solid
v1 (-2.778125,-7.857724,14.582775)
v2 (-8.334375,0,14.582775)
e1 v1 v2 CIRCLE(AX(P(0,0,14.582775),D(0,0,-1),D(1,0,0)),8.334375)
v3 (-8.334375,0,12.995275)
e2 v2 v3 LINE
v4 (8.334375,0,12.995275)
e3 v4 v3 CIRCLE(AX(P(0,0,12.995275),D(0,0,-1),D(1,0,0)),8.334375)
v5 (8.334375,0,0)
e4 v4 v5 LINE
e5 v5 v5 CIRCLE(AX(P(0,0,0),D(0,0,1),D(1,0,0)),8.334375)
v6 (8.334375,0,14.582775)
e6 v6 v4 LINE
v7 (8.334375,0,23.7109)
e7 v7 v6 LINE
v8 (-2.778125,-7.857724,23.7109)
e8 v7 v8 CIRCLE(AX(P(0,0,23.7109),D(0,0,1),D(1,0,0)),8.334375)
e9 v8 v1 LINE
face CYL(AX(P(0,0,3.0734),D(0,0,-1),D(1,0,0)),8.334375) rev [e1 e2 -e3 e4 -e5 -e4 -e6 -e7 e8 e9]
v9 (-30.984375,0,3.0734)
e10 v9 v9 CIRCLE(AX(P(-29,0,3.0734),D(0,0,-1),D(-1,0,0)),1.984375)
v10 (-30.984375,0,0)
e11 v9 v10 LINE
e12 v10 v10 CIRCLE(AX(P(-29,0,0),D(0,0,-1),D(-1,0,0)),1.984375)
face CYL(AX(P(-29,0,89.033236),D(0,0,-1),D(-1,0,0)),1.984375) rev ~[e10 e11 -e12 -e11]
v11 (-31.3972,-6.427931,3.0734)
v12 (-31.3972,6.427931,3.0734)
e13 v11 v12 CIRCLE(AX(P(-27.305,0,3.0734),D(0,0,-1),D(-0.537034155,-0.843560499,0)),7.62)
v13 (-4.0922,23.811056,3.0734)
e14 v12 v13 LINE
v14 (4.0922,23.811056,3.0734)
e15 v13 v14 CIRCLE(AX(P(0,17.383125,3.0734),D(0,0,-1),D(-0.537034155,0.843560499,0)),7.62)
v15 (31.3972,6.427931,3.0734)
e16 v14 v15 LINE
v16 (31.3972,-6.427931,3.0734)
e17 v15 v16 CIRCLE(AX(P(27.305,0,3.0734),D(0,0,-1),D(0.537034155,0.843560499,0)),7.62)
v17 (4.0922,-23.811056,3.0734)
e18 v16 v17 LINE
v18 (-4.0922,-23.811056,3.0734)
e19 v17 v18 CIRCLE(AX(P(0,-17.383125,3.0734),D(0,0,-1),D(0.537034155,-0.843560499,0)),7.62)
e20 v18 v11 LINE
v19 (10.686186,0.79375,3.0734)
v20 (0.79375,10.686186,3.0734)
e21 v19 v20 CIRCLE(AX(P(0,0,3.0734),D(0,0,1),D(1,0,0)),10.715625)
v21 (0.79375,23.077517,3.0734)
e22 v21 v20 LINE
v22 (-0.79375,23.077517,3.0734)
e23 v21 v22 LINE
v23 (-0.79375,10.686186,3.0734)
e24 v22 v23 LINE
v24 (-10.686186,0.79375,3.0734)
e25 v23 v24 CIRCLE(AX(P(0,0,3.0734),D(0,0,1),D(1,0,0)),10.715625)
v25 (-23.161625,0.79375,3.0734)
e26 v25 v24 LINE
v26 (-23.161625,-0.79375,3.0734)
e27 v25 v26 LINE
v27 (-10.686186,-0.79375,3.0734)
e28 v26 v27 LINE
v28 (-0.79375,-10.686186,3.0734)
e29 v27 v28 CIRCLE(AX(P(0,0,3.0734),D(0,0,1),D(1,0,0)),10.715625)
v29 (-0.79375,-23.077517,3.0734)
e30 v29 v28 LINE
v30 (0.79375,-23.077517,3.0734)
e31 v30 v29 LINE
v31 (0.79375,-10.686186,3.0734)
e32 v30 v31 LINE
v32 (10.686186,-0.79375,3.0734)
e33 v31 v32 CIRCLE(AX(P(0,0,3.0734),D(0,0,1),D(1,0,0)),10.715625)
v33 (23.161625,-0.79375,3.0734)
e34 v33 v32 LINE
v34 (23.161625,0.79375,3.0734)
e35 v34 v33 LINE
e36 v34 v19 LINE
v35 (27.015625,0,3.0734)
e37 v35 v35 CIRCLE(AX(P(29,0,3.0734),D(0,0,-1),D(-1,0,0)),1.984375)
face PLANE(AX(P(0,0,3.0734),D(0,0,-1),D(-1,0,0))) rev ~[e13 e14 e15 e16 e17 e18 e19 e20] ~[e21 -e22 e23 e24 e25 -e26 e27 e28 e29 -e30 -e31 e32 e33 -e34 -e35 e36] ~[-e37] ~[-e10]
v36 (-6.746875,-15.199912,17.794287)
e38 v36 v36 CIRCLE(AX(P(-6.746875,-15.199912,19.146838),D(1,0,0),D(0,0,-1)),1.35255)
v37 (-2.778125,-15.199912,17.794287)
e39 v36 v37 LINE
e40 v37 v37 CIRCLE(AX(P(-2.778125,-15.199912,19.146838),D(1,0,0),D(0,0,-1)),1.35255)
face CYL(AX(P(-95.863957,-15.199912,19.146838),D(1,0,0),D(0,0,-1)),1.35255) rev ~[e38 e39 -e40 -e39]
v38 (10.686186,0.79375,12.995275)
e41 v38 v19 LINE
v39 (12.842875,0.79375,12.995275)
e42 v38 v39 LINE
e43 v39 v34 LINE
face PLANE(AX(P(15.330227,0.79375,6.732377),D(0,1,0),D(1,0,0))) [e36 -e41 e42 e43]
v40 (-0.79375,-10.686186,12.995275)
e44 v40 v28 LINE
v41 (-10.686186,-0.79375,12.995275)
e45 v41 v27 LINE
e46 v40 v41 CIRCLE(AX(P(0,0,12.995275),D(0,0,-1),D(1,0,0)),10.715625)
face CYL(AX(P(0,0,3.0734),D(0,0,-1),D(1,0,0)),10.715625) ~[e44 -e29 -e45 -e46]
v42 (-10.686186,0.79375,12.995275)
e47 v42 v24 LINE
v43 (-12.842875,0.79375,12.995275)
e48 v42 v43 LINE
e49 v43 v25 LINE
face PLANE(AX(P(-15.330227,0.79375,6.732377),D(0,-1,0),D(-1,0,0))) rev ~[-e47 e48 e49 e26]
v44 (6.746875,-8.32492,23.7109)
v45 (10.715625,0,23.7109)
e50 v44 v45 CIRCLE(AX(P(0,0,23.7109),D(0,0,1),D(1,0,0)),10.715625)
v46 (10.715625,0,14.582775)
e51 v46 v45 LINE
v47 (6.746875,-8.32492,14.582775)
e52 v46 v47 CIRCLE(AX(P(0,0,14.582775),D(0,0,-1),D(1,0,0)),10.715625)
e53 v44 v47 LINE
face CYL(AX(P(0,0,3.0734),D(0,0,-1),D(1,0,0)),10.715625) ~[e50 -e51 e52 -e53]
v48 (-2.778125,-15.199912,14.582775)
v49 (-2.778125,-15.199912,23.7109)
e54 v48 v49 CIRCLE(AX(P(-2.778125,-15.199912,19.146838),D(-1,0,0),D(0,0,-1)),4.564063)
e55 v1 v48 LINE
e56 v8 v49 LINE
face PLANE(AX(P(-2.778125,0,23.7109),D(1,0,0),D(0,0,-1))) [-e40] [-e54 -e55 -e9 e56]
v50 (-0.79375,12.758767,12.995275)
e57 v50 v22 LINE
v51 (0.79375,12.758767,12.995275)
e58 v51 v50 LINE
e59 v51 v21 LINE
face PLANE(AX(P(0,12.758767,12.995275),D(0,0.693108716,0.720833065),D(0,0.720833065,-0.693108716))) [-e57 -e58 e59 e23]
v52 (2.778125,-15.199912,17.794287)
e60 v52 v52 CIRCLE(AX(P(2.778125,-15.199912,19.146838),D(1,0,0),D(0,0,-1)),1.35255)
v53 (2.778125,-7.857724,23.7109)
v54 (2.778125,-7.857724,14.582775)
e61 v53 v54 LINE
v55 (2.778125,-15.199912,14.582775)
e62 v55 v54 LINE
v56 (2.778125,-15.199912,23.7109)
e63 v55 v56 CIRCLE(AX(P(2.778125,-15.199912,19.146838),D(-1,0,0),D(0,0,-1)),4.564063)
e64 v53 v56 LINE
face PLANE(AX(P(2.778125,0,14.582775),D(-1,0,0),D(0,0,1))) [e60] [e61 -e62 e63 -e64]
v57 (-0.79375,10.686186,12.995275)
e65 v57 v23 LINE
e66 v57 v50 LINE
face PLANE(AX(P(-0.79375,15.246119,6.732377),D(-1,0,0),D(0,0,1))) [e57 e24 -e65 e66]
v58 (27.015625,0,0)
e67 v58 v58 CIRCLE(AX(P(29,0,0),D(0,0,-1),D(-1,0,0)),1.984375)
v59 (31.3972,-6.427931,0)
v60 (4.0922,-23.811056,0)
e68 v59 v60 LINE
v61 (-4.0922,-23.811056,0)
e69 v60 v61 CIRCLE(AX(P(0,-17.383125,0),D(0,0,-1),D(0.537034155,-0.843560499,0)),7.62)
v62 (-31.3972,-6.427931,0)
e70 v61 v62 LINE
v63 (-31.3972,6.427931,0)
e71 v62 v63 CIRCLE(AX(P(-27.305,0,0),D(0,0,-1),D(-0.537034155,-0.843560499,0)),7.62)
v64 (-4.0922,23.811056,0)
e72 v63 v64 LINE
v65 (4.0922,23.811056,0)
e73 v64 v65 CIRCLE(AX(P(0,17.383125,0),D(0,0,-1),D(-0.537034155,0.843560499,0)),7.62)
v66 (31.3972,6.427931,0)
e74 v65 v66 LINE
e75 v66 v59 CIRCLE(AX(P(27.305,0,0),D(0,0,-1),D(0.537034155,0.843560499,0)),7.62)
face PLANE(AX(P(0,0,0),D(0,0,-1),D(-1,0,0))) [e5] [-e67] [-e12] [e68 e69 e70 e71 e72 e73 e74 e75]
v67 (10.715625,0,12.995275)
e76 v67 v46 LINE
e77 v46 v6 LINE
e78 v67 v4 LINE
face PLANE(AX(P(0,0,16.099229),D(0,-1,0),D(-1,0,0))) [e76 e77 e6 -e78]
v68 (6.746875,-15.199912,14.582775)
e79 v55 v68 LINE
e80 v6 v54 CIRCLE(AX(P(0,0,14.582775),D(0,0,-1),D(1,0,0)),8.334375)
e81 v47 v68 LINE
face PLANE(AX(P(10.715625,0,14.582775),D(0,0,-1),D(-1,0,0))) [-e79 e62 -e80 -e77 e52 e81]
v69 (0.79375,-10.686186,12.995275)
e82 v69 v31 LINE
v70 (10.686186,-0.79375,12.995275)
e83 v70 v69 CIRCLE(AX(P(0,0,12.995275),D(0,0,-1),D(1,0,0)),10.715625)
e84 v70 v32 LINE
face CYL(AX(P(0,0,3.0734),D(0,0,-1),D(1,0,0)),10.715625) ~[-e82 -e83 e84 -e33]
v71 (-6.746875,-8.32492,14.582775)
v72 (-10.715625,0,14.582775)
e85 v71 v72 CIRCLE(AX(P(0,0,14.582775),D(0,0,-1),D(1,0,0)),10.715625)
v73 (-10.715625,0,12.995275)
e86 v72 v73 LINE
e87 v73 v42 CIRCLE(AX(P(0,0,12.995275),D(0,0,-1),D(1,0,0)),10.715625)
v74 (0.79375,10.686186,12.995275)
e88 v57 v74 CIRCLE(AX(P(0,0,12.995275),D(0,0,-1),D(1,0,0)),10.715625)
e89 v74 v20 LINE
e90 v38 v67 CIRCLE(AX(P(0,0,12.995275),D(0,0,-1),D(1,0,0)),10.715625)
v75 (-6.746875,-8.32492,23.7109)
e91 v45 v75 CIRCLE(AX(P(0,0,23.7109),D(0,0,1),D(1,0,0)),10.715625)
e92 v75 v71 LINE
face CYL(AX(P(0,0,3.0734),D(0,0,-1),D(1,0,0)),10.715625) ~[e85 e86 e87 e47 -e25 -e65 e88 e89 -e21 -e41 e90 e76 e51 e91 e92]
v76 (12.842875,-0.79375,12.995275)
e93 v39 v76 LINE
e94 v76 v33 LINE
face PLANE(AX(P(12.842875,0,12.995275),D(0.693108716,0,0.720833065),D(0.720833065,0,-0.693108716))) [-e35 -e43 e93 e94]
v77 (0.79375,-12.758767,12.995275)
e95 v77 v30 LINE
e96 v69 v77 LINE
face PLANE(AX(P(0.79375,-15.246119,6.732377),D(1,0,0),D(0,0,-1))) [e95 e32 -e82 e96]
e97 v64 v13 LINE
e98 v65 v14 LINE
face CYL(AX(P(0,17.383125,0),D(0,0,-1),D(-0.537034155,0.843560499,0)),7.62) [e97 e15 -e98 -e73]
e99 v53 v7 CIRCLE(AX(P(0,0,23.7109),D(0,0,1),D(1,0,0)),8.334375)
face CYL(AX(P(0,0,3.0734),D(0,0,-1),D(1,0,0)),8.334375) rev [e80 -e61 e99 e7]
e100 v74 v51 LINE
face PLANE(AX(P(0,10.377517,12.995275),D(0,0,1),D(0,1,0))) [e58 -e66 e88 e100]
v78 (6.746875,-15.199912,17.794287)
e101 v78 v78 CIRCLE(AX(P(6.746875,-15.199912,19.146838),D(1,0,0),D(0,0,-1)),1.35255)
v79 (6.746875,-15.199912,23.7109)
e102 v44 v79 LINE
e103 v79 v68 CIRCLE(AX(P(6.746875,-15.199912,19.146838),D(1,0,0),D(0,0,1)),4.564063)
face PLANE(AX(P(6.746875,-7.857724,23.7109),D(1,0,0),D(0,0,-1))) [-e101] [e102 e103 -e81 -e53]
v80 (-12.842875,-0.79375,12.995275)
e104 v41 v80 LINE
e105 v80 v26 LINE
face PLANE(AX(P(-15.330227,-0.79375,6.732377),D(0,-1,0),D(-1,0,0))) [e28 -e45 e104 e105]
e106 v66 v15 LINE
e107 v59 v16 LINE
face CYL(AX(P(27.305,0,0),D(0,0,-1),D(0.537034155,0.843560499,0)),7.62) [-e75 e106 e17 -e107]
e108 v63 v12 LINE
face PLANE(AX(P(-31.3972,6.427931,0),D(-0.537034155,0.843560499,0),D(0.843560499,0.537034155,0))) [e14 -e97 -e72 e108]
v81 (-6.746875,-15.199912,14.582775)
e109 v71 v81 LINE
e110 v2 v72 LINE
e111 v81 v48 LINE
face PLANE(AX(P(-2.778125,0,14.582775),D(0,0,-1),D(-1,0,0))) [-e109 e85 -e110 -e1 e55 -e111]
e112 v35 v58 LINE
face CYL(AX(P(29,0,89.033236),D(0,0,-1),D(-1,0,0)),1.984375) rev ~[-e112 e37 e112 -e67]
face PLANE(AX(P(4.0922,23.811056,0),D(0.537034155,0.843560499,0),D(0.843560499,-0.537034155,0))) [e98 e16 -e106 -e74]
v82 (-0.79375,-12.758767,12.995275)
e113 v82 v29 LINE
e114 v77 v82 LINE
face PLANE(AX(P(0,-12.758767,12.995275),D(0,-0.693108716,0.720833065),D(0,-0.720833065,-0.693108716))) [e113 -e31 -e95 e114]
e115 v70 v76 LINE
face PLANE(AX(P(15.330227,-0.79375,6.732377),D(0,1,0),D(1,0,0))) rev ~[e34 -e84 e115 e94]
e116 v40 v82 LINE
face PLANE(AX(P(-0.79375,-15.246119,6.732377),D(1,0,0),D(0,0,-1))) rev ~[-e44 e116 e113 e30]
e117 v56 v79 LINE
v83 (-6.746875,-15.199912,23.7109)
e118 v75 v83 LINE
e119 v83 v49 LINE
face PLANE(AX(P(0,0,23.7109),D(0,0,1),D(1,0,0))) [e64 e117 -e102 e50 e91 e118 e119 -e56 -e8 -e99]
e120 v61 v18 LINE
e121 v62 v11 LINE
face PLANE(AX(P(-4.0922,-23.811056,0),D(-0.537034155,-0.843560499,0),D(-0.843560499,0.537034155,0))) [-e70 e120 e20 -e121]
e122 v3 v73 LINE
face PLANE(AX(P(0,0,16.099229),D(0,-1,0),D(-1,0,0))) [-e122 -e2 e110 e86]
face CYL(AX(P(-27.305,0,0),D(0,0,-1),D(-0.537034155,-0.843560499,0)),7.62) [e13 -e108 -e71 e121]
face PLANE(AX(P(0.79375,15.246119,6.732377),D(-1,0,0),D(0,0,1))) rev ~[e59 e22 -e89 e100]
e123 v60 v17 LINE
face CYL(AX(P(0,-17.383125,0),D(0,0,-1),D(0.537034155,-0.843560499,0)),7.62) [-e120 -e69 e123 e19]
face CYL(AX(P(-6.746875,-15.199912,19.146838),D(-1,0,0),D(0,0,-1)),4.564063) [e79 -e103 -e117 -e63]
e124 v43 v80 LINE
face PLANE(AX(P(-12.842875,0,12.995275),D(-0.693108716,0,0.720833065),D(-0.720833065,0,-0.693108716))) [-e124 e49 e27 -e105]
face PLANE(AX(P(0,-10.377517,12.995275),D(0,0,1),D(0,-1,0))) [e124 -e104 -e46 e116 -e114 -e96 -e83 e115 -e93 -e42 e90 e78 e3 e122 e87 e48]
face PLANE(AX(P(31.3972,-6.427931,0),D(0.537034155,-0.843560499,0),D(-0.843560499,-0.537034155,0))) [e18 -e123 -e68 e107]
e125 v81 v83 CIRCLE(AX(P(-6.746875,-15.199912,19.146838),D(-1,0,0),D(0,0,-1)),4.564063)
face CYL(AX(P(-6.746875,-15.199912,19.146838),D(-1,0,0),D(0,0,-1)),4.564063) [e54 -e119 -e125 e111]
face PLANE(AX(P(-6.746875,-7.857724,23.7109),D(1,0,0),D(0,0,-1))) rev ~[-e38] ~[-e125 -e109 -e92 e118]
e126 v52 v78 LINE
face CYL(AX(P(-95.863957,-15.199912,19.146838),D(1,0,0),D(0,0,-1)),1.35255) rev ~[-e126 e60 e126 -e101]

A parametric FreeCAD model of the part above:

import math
import FreeCAD as App
import Part
import Sketcher
Q = App.Units.Quantity


def add_polygon(sketch, points):
    """Adds a closed chain of lines whose ends are joined by coincident constraints."""
    first, n = sketch.GeometryCount, len(points)
    for a, b in zip(points, points[1:] + points[:1]):
        sketch.addGeometry(Part.LineSegment(App.Vector(*a, 0), App.Vector(*b, 0)), False)
    for i in range(n):
        sketch.addConstraint(Sketcher.Constraint("Coincident", first + i, 2, first + (i + 1) % n, 1))

doc = App.newDocument("Part")
body = doc.addObject("PartDesign::Body", "Body")

# Sketch on XY plane
sketch1 = body.newObject("Sketcher::SketchObject", "Sketch")
sketch1.AttachmentSupport = (doc.getObject("XY_Plane"), [""])
sketch1.MapMode = "FlatFace"
sketch1.addGeometry([
    Part.LineSegment(App.Vector(-4.0922, 23.811056, 0), App.Vector(-31.3972, 6.427931, 0)),  # 0
    Part.ArcOfCircle(Part.Circle(App.Vector(-27.305, 0, 0), App.Vector(0, 0, 1), 7.62), math.radians(122.481968), math.radians(237.518032)),  # 1
    Part.LineSegment(App.Vector(-31.3972, -6.427931, 0), App.Vector(-4.0922, -23.811056, 0)),  # 2
    Part.ArcOfCircle(Part.Circle(App.Vector(0, -17.383125, 0), App.Vector(0, 0, 1), 7.62), math.radians(-122.481968), math.radians(-57.518032)),  # 3
    Part.LineSegment(App.Vector(4.0922, -23.811056, 0), App.Vector(31.3972, -6.427931, 0)),  # 4
    Part.ArcOfCircle(Part.Circle(App.Vector(27.305, 0, 0), App.Vector(0, 0, 1), 7.62), math.radians(-57.518032), math.radians(57.518032)),  # 5
    Part.LineSegment(App.Vector(31.3972, 6.427931, 0), App.Vector(4.0922, 23.811056, 0)),  # 6
    Part.ArcOfCircle(Part.Circle(App.Vector(0, 17.383125, 0), App.Vector(0, 0, 1), 7.62), math.radians(57.518032), math.radians(122.481968)),  # 7
    Part.Circle(App.Vector(0, 0, 0), App.Vector(0, 0, 1), 8.334375),  # 8
], False)
sketch1.addConstraint([
    Sketcher.Constraint("Tangent", 0, 2, 1, 1),
    Sketcher.Constraint("Tangent", 1, 2, 2, 1),
    Sketcher.Constraint("Tangent", 2, 2, 3, 1),
    Sketcher.Constraint("Tangent", 3, 2, 4, 1),
    Sketcher.Constraint("Tangent", 4, 2, 5, 1),
    Sketcher.Constraint("Tangent", 5, 2, 6, 1),
    Sketcher.Constraint("Tangent", 6, 2, 7, 1),
    Sketcher.Constraint("Tangent", 7, 2, 0, 1),
    Sketcher.Constraint("Coincident", 8, 3, -1, 1),
    Sketcher.Constraint("Equal", 1, 3),
    Sketcher.Constraint("Equal", 3, 5),
    Sketcher.Constraint("Equal", 5, 7),
    Sketcher.Constraint("Symmetric", 1, 3, 5, 3, -1, 1),
    Sketcher.Constraint("Symmetric", 3, 3, 7, 3, -1, 1),
    Sketcher.Constraint("Symmetric", 2, 2, 3, 2, -2),
    Sketcher.Constraint("Radius", 1, Q("0.3 in")),
    Sketcher.Constraint("Diameter", 8, Q("0.65625 in")),
    Sketcher.Constraint("DistanceX", 1, 3, 5, 3, Q("2.15 in")),
    Sketcher.Constraint("DistanceX", 0, 2, -1, 1, 31.3972),
])
pad1 = body.newObject("PartDesign::Pad", "Pad")
pad1.Profile = sketch1
pad1.Length = Q("0.121 in")

# Sketch on XY plane
sketch2 = body.newObject("Sketcher::SketchObject", "Sketch001")
sketch2.AttachmentSupport = (doc.getObject("XY_Plane"), [""])
sketch2.MapMode = "FlatFace"
sketch2.AttachmentOffset = App.Placement(App.Vector(0, 0, 0.121 * 25.4), App.Rotation())
sketch2.addGeometry([
    Part.Circle(App.Vector(-29, 0, 0), App.Vector(0, 0, 1), 1.984375),
    Part.Circle(App.Vector(29, 0, 0), App.Vector(0, 0, 1), 1.984375),
], False)
sketch2.addConstraint([
    Sketcher.Constraint("Equal", 0, 1),
    Sketcher.Constraint("Symmetric", 0, 3, 1, 3, -1, 1),
    Sketcher.Constraint("PointOnObject", 0, 3, -1),
    Sketcher.Constraint("Diameter", 0, Q("0.15625 in")),
    Sketcher.Constraint("DistanceX", 0, 3, -1, 1, 29.0),
])
doc.recompute()
hole = body.newObject("PartDesign::Hole", "Hole")
hole.Profile = sketch2
hole.ThreadType = "None"
hole.Diameter = Q("0.15625 in")
hole.DepthType = "ThroughAll"

# Sketch on XY plane
sketch3 = body.newObject("Sketcher::SketchObject", "Sketch002")
sketch3.AttachmentSupport = (doc.getObject("XY_Plane"), [""])
sketch3.MapMode = "FlatFace"
sketch3.AttachmentOffset = App.Placement(App.Vector(0, 0, 0.121 * 25.4), App.Rotation())
sketch3.addGeometry([
    Part.Circle(App.Vector(0, 0, 0), App.Vector(0, 0, 1), 10.715625),
    Part.Circle(App.Vector(0, 0, 0), App.Vector(0, 0, 1), 8.334375),
], False)
sketch3.addConstraint([
    Sketcher.Constraint("Coincident", 0, 3, -1, 1),
    Sketcher.Constraint("Coincident", 1, 3, -1, 1),
    Sketcher.Constraint("Diameter", 0, Q("0.84375 in")),
    Sketcher.Constraint("Diameter", 1, Q("0.65625 in")),
])
pad2 = body.newObject("PartDesign::Pad", "Pad001")
pad2.Profile = sketch3
pad2.Length = Q("0.8125 in")

# Sketch on XZ plane
sketch4 = body.newObject("Sketcher::SketchObject", "Sketch003")
sketch4.AttachmentSupport = (doc.getObject("XZ_Plane"), [""])
sketch4.MapMode = "FlatFace"
add_polygon(sketch4, [(10.715625, 12.995275), (-10.715625, 12.995275), (-10.715625, 14.582775), (-2.778125, 14.582775), (-2.778125, 23.7109), (2.778125, 23.7109), (2.778125, 14.582775), (10.715625, 14.582775)])  # lines 0-7
sketch4.addConstraint([
    Sketcher.Constraint("Horizontal", 0),
    Sketcher.Constraint("Vertical", 1),
    Sketcher.Constraint("Horizontal", 2),
    Sketcher.Constraint("Vertical", 3),
    Sketcher.Constraint("Horizontal", 4),
    Sketcher.Constraint("Vertical", 5),
    Sketcher.Constraint("Horizontal", 6),
    Sketcher.Constraint("Vertical", 7),
    Sketcher.Constraint("Symmetric", 2, 2, 5, 2, -2),
    Sketcher.Constraint("Equal", 2, 6),
    Sketcher.Constraint("DistanceX", 0, 2, 0, 1, Q("0.84375 in")),
    Sketcher.Constraint("DistanceX", 2, 1, 2, 2, Q("0.3125 in")),
    Sketcher.Constraint("DistanceY", 1, 1, 1, 2, Q("0.0625 in")),
    Sketcher.Constraint("DistanceY", 3, 1, 3, 2, Q("0.359375 in")),
    Sketcher.Constraint("DistanceY", -1, 1, 3, 2, Q("0.9335 in")),
])
pocket1 = body.newObject("PartDesign::Pocket", "Pocket")
pocket1.Profile = sketch4
pocket1.Type = "ThroughAll"
pocket1.Reversed = True

# Sketch on XZ plane
sketch5 = body.newObject("Sketcher::SketchObject", "Sketch004")
sketch5.AttachmentSupport = (doc.getObject("XZ_Plane"), [""])
sketch5.MapMode = "FlatFace"
sketch5.AttachmentOffset = App.Placement(App.Vector(0, 0, 7.857724), App.Rotation())
add_polygon(sketch5, [(-6.746875, 14.582775), (-6.746875, 23.7109), (-2.778125, 23.7109), (-2.778125, 14.582775)])  # lines 0-3
add_polygon(sketch5, [(2.778125, 14.582775), (2.778125, 23.7109), (6.746875, 23.7109), (6.746875, 14.582775)])  # lines 4-7
sketch5.addConstraint([
    Sketcher.Constraint("Vertical", 0),
    Sketcher.Constraint("Horizontal", 1),
    Sketcher.Constraint("Vertical", 2),
    Sketcher.Constraint("Horizontal", 3),
    Sketcher.Constraint("Vertical", 4),
    Sketcher.Constraint("Horizontal", 5),
    Sketcher.Constraint("Vertical", 6),
    Sketcher.Constraint("Horizontal", 7),
    Sketcher.Constraint("Symmetric", 1, 2, 4, 2, -2),
    Sketcher.Constraint("Symmetric", 3, 2, 6, 2, -2),
    Sketcher.Constraint("DistanceX", 1, 1, 1, 2, Q("0.15625 in")),
    Sketcher.Constraint("DistanceY", 0, 1, 0, 2, Q("0.359375 in")),
    Sketcher.Constraint("DistanceX", 0, 2, -1, 1, Q("0.265625 in")),
    Sketcher.Constraint("DistanceY", -1, 1, 0, 2, Q("0.9335 in")),
])
pad3 = body.newObject("PartDesign::Pad", "Pad002")
pad3.Profile = sketch5
pad3.Length = Q("0.46875 in")

# Sketch on YZ plane
sketch6 = body.newObject("Sketcher::SketchObject", "Sketch005")
sketch6.AttachmentSupport = (doc.getObject("YZ_Plane"), [""])
sketch6.MapMode = "FlatFace"
sketch6.AttachmentOffset = App.Placement(App.Vector(0, 0, -0.265625 * 25.4), App.Rotation())
sketch6.addGeometry([
    Part.LineSegment(App.Vector(-21.050206, 23.7109, 0), App.Vector(-15.199912, 23.7109, 0)),
    Part.ArcOfCircle(Part.Circle(App.Vector(-15.199912, 19.146838, 0), App.Vector(0, 0, 1), 4.564063), math.radians(90), math.radians(270)),
    Part.LineSegment(App.Vector(-15.199912, 14.582775, 0), App.Vector(-21.050206, 14.582775, 0)),
    Part.LineSegment(App.Vector(-21.050206, 14.582775, 0), App.Vector(-21.050206, 23.7109, 0)),
], False)
sketch6.addConstraint([
    Sketcher.Constraint("Tangent", 0, 2, 1, 1),
    Sketcher.Constraint("Tangent", 1, 2, 2, 1),
    Sketcher.Constraint("Coincident", 2, 2, 3, 1),
    Sketcher.Constraint("Coincident", 3, 2, 0, 1),
    Sketcher.Constraint("Horizontal", 0),
    Sketcher.Constraint("Horizontal", 2),
    Sketcher.Constraint("Vertical", 3),
    Sketcher.Constraint("DistanceY", 3, 1, 3, 2, Q("0.359375 in")),
    Sketcher.Constraint("DistanceY", -1, 1, 0, 2, Q("0.9335 in")),
    Sketcher.Constraint("DistanceX", 0, 1, 0, 2, 5.850294),
    Sketcher.Constraint("DistanceX", 1, 3, -1, 1, 15.199912),
])
pocket2 = body.newObject("PartDesign::Pocket", "Pocket001")
pocket2.Profile = sketch6
pocket2.Type = "ThroughAll"
pocket2.Reversed = True

# Sketch on YZ plane
sketch7 = body.newObject("Sketcher::SketchObject", "Sketch006")
sketch7.AttachmentSupport = (doc.getObject("YZ_Plane"), [""])
sketch7.MapMode = "FlatFace"
sketch7.AttachmentOffset = App.Placement(App.Vector(0, 0, -0.265625 * 25.4), App.Rotation())
sketch7.addGeometry(Part.Circle(App.Vector(-15.199912, 19.146838, 0), App.Vector(0, 0, 1), 1.35255), False)
sketch7.addConstraint([
    Sketcher.Constraint("Diameter", 0, Q("0.1065 in")),
    Sketcher.Constraint("DistanceX", 0, 3, -1, 1, 15.199912),
    Sketcher.Constraint("DistanceY", -1, 1, 0, 3, 19.146838),
])
doc.recompute()
hole2 = body.newObject("PartDesign::Hole", "Hole001")
hole2.Profile = sketch7
hole2.ThreadType = "None"
hole2.Diameter = Q("0.1065 in")
hole2.DepthType = "ThroughAll"
hole2.Reversed = True

# Sketch on XZ plane
sketch8 = body.newObject("Sketcher::SketchObject", "Sketch007")
sketch8.AttachmentSupport = (doc.getObject("XZ_Plane"), [""])
sketch8.MapMode = "FlatFace"
add_polygon(sketch8, [(-12.842875, 12.995275), (-10.461625, 12.995275), (-10.461625, 3.0734), (-23.161625, 3.0734)])  # lines 0-3
add_polygon(sketch8, [(23.161625, 3.0734), (10.461625, 3.0734), (10.461625, 12.995275), (12.842875, 12.995275)])  # lines 4-7
sketch8.addConstraint([
    Sketcher.Constraint("Horizontal", 0),
    Sketcher.Constraint("Vertical", 1),
    Sketcher.Constraint("Horizontal", 2),
    Sketcher.Constraint("Horizontal", 4),
    Sketcher.Constraint("Vertical", 5),
    Sketcher.Constraint("Horizontal", 6),
    Sketcher.Constraint("Symmetric", 1, 2, 4, 2, -2),
    Sketcher.Constraint("Symmetric", 3, 2, 6, 2, -2),
    Sketcher.Constraint("Equal", 2, 4),
    Sketcher.Constraint("DistanceX", 2, 2, 2, 1, Q("0.5 in")),
    Sketcher.Constraint("DistanceX", 0, 1, 0, 2, Q("0.09375 in")),
    Sketcher.Constraint("DistanceY", 1, 2, 1, 1, Q("0.390625 in")),
    Sketcher.Constraint("DistanceY", -1, 1, 1, 2, Q("0.121 in")),
    Sketcher.Constraint("DistanceX", 3, 2, 4, 2, Q("0.9175 in")),
])
pad4 = body.newObject("PartDesign::Pad", "Pad003")
pad4.Profile = sketch8
pad4.Length = Q("0.0625 in")
pad4.Midplane = True

# Sketch on YZ plane
sketch9 = body.newObject("Sketcher::SketchObject", "Sketch008")
sketch9.AttachmentSupport = (doc.getObject("YZ_Plane"), [""])
sketch9.MapMode = "FlatFace"
add_polygon(sketch9, [(12.758767, 12.995275), (10.377517, 12.995275), (10.377517, 3.0734), (23.077517, 3.0734)])  # lines 0-3
add_polygon(sketch9, [(-23.077517, 3.0734), (-10.377517, 3.0734), (-10.377517, 12.995275), (-12.758767, 12.995275)])  # lines 4-7
sketch9.addConstraint([
    Sketcher.Constraint("Horizontal", 0),
    Sketcher.Constraint("Vertical", 1),
    Sketcher.Constraint("Horizontal", 2),
    Sketcher.Constraint("Horizontal", 4),
    Sketcher.Constraint("Vertical", 5),
    Sketcher.Constraint("Horizontal", 6),
    Sketcher.Constraint("Symmetric", 1, 2, 4, 2, -2),
    Sketcher.Constraint("Symmetric", 3, 2, 6, 2, -2),
    Sketcher.Constraint("Equal", 2, 4),
    Sketcher.Constraint("DistanceX", 2, 1, 2, 2, Q("0.5 in")),
    Sketcher.Constraint("DistanceX", 0, 2, 0, 1, Q("0.09375 in")),
    Sketcher.Constraint("DistanceY", 1, 2, 1, 1, Q("0.390625 in")),
    Sketcher.Constraint("DistanceY", -1, 1, 1, 2, Q("0.121 in")),
    Sketcher.Constraint("DistanceX", -1, 1, 0, 2, 10.377517),
])
pad5 = body.newObject("PartDesign::Pad", "Pad004")
pad5.Profile = sketch9
pad5.Length = Q("0.0625 in")
pad5.Midplane = True

doc.recompute()
